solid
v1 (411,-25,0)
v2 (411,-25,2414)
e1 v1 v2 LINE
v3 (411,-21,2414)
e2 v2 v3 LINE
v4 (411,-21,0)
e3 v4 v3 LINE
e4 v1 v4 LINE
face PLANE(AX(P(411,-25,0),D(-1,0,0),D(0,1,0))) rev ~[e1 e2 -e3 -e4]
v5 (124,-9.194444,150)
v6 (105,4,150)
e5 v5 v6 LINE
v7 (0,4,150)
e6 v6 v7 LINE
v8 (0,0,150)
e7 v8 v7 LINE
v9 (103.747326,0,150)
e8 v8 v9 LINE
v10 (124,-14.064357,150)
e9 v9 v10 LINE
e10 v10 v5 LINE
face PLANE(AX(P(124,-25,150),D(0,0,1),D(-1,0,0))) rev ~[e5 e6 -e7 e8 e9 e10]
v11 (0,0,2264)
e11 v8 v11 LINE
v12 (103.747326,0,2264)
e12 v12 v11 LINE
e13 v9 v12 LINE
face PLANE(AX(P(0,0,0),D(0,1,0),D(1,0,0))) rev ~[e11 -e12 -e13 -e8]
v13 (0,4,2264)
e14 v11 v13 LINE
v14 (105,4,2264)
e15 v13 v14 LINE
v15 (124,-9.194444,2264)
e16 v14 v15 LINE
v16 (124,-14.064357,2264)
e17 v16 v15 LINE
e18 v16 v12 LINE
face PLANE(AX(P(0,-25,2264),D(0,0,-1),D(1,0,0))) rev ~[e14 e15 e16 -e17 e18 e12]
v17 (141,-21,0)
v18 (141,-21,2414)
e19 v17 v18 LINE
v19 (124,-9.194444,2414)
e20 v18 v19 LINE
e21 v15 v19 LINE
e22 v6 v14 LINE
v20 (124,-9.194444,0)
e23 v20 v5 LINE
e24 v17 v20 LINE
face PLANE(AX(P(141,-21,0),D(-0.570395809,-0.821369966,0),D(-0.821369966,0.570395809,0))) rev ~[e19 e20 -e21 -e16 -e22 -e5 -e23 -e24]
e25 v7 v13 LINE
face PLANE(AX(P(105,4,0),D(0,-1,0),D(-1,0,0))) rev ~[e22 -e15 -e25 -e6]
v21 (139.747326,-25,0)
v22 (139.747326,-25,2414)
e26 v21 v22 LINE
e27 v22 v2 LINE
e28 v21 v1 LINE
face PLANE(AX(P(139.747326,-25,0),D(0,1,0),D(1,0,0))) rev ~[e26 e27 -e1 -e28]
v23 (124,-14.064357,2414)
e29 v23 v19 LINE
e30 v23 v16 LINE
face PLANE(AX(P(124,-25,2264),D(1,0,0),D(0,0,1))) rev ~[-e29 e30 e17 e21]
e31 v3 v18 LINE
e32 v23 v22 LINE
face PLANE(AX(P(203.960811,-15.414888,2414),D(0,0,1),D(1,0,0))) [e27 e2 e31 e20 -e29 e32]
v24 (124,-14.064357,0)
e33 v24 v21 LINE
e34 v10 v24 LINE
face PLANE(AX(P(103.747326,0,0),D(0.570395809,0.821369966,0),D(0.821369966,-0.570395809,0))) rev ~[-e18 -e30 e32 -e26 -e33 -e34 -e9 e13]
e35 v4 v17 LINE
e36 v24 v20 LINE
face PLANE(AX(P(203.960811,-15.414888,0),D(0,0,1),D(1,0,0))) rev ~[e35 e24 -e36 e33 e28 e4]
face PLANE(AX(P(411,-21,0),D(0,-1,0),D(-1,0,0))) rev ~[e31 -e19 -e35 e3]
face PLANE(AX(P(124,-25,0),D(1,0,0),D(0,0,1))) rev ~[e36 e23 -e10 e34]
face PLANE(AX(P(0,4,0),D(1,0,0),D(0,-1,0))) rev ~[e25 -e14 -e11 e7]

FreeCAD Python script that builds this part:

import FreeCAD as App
import Part
import Sketcher
from FreeCAD import Vector
Q = App.Units.Quantity

doc = App.newDocument("Part")
params = doc.addObject("Spreadsheet::Sheet", "Params")
for row, (alias, value) in enumerate([
    ("sketch1_width", "270 mm"),
    ("sketch1_width2", "105 mm"),
    ("sketch1_height", "4 mm"),
    ("pad1_length", "2414 mm"),
    ("sketch2_width", "124 mm"),
    ("sketch2_height", "150 mm"),
], start=1):
    params.set(f"A{row}", alias)
    params.set(f"B{row}", "=" + value)
    params.setAlias(f"B{row}", alias)

body = doc.addObject("PartDesign::Body", "Body")

# Sketch on XY plane
sketch1 = body.newObject("Sketcher::SketchObject", "Sketch")
sketch1.AttachmentSupport = (doc.getObject("XY_Plane"), [""])
sketch1.MapMode = "FlatFace"
sketch1.addGeometry([
    Part.LineSegment(Vector(0, 4, 0), Vector(0, 0, 0)),  # 0
    Part.LineSegment(Vector(0, 0, 0), Vector(103.7, 0, 0)),  # 1
    Part.LineSegment(Vector(103.7, 0, 0), Vector(139.7, -25, 0)),  # 2
    Part.LineSegment(Vector(139.7, -25, 0), Vector(411, -25, 0)),  # 3
    Part.LineSegment(Vector(411, -25, 0), Vector(411, -21, 0)),  # 4
    Part.LineSegment(Vector(411, -21, 0), Vector(141, -21, 0)),  # 5
    Part.LineSegment(Vector(141, -21, 0), Vector(105, 4, 0)),  # 6
    Part.LineSegment(Vector(105, 4, 0), Vector(0, 4, 0)),  # 7
], False)
sketch1.addConstraint([
    Sketcher.Constraint("Coincident", 0, 2, 1, 1),
    Sketcher.Constraint("Coincident", 1, 2, 2, 1),
    Sketcher.Constraint("Coincident", 2, 2, 3, 1),
    Sketcher.Constraint("Coincident", 3, 2, 4, 1),
    Sketcher.Constraint("Coincident", 4, 2, 5, 1),
    Sketcher.Constraint("Coincident", 5, 2, 6, 1),
    Sketcher.Constraint("Coincident", 6, 2, 7, 1),
    Sketcher.Constraint("Coincident", 7, 2, 0, 1),
    Sketcher.Constraint("Vertical", 0),
    Sketcher.Constraint("Horizontal", 1),
    Sketcher.Constraint("Horizontal", 3),
    Sketcher.Constraint("Vertical", 4),
    Sketcher.Constraint("Horizontal", 5),
    Sketcher.Constraint("Horizontal", 7),
    Sketcher.Constraint("Coincident", 0, 2, -1, 1),
    Sketcher.Constraint("Parallel", 2, 6),
    Sketcher.Constraint("Equal", 0, 4),
    Sketcher.Constraint("DistanceX", 5, 2, 5, 1, Q("270 mm")),
    Sketcher.Constraint("DistanceX", 7, 2, 7, 1, Q("105 mm")),
    Sketcher.Constraint("DistanceY", 0, 2, 0, 1, Q("4 mm")),
    Sketcher.Constraint("DistanceY", 2, 2, -1, 1, Q("25 mm")),
    Sketcher.Constraint("DistanceX", -1, 1, 3, 2, Q("411 mm")),
    Sketcher.Constraint("DistanceX", 1, 1, 1, 2, Q("103.747326 mm")),
])
sketch1.setExpression("Constraints[17]", "Params.sketch1_width")
sketch1.setExpression("Constraints[18]", "Params.sketch1_width2")
sketch1.setExpression("Constraints[19]", "Params.sketch1_height")
pad1 = body.newObject("PartDesign::Pad", "Pad")
pad1.Profile = sketch1
pad1.setExpression("Length", "Params.pad1_length")

# Sketch on XZ plane
sketch2 = body.newObject("Sketcher::SketchObject", "Sketch001")
sketch2.AttachmentSupport = (doc.getObject("XZ_Plane"), [""])
sketch2.MapMode = "FlatFace"
sketch2.AttachmentOffset = App.Placement(Vector(0, 0, 25), App.Rotation())
sketch2.addGeometry([
    Part.LineSegment(Vector(0, 2414, 0), Vector(0, 2264, 0)),  # 0
    Part.LineSegment(Vector(0, 2264, 0), Vector(124, 2264, 0)),  # 1
    Part.LineSegment(Vector(124, 2264, 0), Vector(124, 2414, 0)),  # 2
    Part.LineSegment(Vector(124, 2414, 0), Vector(0, 2414, 0)),  # 3
    Part.LineSegment(Vector(124, 0, 0), Vector(124, 150, 0)),  # 4
    Part.LineSegment(Vector(124, 150, 0), Vector(0, 150, 0)),  # 5
    Part.LineSegment(Vector(0, 150, 0), Vector(0, 0, 0)),  # 6
    Part.LineSegment(Vector(0, 0, 0), Vector(124, 0, 0)),  # 7
], False)
sketch2.addConstraint([
    Sketcher.Constraint("Coincident", 0, 2, 1, 1),
    Sketcher.Constraint("Coincident", 1, 2, 2, 1),
    Sketcher.Constraint("Coincident", 2, 2, 3, 1),
    Sketcher.Constraint("Coincident", 3, 2, 0, 1),
    Sketcher.Constraint("Coincident", 4, 2, 5, 1),
    Sketcher.Constraint("Coincident", 5, 2, 6, 1),
    Sketcher.Constraint("Coincident", 6, 2, 7, 1),
    Sketcher.Constraint("Coincident", 7, 2, 4, 1),
    Sketcher.Constraint("Vertical", 0),
    Sketcher.Constraint("Horizontal", 1),
    Sketcher.Constraint("Vertical", 2),
    Sketcher.Constraint("Horizontal", 3),
    Sketcher.Constraint("Vertical", 4),
    Sketcher.Constraint("Horizontal", 5),
    Sketcher.Constraint("Vertical", 6),
    Sketcher.Constraint("Horizontal", 7),
    Sketcher.Constraint("Coincident", 6, 2, -1, 1),
    Sketcher.Constraint("PointOnObject", 0, 2, -2),
    Sketcher.Constraint("Vertical", 2, 2, 4, 2),
    Sketcher.Constraint("Equal", 2, 4),
    Sketcher.Constraint("DistanceX", 1, 1, 1, 2, Q("124 mm")),
    Sketcher.Constraint("DistanceY", 0, 2, 0, 1, Q("150 mm")),
    Sketcher.Constraint("DistanceY", -1, 1, 0, 2, Q("2264 mm")),
])
sketch2.setExpression("Constraints[20]", "Params.sketch2_width")
sketch2.setExpression("Constraints[21]", "Params.sketch2_height")
pocket1 = body.newObject("PartDesign::Pocket", "Pocket")
pocket1.Profile = sketch2
pocket1.Type = "ThroughAll"

doc.recompute()
